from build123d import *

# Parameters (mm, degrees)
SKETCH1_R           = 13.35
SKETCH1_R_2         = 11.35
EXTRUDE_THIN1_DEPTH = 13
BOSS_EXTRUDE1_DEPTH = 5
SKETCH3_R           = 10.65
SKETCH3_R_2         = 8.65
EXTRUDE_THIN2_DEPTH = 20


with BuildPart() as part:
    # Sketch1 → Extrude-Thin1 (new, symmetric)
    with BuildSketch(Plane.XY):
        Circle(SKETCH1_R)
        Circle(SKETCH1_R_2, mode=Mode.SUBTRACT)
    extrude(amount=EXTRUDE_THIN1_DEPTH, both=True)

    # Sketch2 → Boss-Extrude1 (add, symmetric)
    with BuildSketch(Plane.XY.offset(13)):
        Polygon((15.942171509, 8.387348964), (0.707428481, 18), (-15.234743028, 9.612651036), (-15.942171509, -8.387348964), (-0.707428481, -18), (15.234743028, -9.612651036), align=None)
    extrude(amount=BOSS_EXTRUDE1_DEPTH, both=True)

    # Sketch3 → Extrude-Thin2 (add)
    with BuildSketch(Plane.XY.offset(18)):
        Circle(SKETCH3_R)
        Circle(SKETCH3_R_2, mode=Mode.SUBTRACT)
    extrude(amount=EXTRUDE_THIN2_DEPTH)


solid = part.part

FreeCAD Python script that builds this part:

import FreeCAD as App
import Part
import Sketcher
Q = App.Units.Quantity

doc = App.newDocument("Part")
body = doc.addObject("PartDesign::Body", "Body")

# Sketch on XY plane
sketch1 = body.newObject("Sketcher::SketchObject", "Sketch")
sketch1.AttachmentSupport = (doc.getObject("XY_Plane"), [""])
sketch1.MapMode = "FlatFace"
sketch1.addGeometry([
    Part.Circle(App.Vector(0, 0, 0), App.Vector(0, 0, 1), 13.35),
    Part.Circle(App.Vector(0, 0, 0), App.Vector(0, 0, 1), 11.35),
], False)
sketch1.addConstraint([
    Sketcher.Constraint("Coincident", 0, 3, -1, 1),
    Sketcher.Constraint("Coincident", 1, 3, -1, 1),
    Sketcher.Constraint("Diameter", 0, Q("26.7 mm")),
    Sketcher.Constraint("Diameter", 1, Q("22.7 mm")),
])
pad1 = body.newObject("PartDesign::Pad", "Pad")
pad1.Profile = sketch1
pad1.Length = 26
pad1.Midplane = True

# Sketch on XY plane
sketch2 = body.newObject("Sketcher::SketchObject", "Sketch001")
sketch2.AttachmentSupport = (doc.getObject("XY_Plane"), [""])
sketch2.MapMode = "FlatFace"
sketch2.AttachmentOffset = App.Placement(App.Vector(0, 0, 13), App.Rotation())
sketch2.addGeometry([
    Part.LineSegment(App.Vector(15.942172, 8.387349, 0), App.Vector(0.707428, 18, 0)),  # 0
    Part.LineSegment(App.Vector(0.707428, 18, 0), App.Vector(-15.234743, 9.612651, 0)),  # 1
    Part.LineSegment(App.Vector(-15.234743, 9.612651, 0), App.Vector(-15.942172, -8.387349, 0)),  # 2
    Part.LineSegment(App.Vector(-15.942172, -8.387349, 0), App.Vector(-0.707428, -18, 0)),  # 3
    Part.LineSegment(App.Vector(-0.707428, -18, 0), App.Vector(15.234743, -9.612651, 0)),  # 4
    Part.LineSegment(App.Vector(15.234743, -9.612651, 0), App.Vector(15.942172, 8.387349, 0)),  # 5
], False)
sketch2.addConstraint([
    Sketcher.Constraint("Coincident", 0, 2, 1, 1),
    Sketcher.Constraint("Coincident", 1, 2, 2, 1),
    Sketcher.Constraint("Coincident", 2, 2, 3, 1),
    Sketcher.Constraint("Coincident", 3, 2, 4, 1),
    Sketcher.Constraint("Coincident", 4, 2, 5, 1),
    Sketcher.Constraint("Coincident", 5, 2, 0, 1),
    Sketcher.Constraint("Symmetric", 0, 2, 3, 2, -1, 1),
    Sketcher.Constraint("Symmetric", 1, 2, 4, 2, -1, 1),
    Sketcher.Constraint("Symmetric", 2, 2, 5, 2, -1, 1),
    Sketcher.Constraint("Equal", 0, 1),
    Sketcher.Constraint("Equal", 1, 2),
    Sketcher.Constraint("DistanceY", -1, 1, 0, 2, Q("18 mm")),
    Sketcher.Constraint("DistanceY", 2, 2, 1, 2, Q("18 mm")),
    Sketcher.Constraint("DistanceX", 2, 2, 0, 2, Q("16.6496 mm")),
    Sketcher.Constraint("DistanceX", -1, 1, 0, 2, Q("0.707428 mm")),
])
pad2 = body.newObject("PartDesign::Pad", "Pad001")
pad2.Profile = sketch2
pad2.Length = 10
pad2.Midplane = True

# Sketch on XY plane
sketch3 = body.newObject("Sketcher::SketchObject", "Sketch002")
sketch3.AttachmentSupport = (doc.getObject("XY_Plane"), [""])
sketch3.MapMode = "FlatFace"
sketch3.AttachmentOffset = App.Placement(App.Vector(0, 0, 18), App.Rotation())
sketch3.addGeometry([
    Part.Circle(App.Vector(0, 0, 0), App.Vector(0, 0, 1), 10.65),
    Part.Circle(App.Vector(0, 0, 0), App.Vector(0, 0, 1), 8.65),
], False)
sketch3.addConstraint([
    Sketcher.Constraint("Coincident", 0, 3, -1, 1),
    Sketcher.Constraint("Coincident", 1, 3, -1, 1),
    Sketcher.Constraint("Diameter", 0, Q("21.3 mm")),
    Sketcher.Constraint("Diameter", 1, Q("17.3 mm")),
])
pad3 = body.newObject("PartDesign::Pad", "Pad002")
pad3.Profile = sketch3
pad3.Length = 20

doc.recompute()
